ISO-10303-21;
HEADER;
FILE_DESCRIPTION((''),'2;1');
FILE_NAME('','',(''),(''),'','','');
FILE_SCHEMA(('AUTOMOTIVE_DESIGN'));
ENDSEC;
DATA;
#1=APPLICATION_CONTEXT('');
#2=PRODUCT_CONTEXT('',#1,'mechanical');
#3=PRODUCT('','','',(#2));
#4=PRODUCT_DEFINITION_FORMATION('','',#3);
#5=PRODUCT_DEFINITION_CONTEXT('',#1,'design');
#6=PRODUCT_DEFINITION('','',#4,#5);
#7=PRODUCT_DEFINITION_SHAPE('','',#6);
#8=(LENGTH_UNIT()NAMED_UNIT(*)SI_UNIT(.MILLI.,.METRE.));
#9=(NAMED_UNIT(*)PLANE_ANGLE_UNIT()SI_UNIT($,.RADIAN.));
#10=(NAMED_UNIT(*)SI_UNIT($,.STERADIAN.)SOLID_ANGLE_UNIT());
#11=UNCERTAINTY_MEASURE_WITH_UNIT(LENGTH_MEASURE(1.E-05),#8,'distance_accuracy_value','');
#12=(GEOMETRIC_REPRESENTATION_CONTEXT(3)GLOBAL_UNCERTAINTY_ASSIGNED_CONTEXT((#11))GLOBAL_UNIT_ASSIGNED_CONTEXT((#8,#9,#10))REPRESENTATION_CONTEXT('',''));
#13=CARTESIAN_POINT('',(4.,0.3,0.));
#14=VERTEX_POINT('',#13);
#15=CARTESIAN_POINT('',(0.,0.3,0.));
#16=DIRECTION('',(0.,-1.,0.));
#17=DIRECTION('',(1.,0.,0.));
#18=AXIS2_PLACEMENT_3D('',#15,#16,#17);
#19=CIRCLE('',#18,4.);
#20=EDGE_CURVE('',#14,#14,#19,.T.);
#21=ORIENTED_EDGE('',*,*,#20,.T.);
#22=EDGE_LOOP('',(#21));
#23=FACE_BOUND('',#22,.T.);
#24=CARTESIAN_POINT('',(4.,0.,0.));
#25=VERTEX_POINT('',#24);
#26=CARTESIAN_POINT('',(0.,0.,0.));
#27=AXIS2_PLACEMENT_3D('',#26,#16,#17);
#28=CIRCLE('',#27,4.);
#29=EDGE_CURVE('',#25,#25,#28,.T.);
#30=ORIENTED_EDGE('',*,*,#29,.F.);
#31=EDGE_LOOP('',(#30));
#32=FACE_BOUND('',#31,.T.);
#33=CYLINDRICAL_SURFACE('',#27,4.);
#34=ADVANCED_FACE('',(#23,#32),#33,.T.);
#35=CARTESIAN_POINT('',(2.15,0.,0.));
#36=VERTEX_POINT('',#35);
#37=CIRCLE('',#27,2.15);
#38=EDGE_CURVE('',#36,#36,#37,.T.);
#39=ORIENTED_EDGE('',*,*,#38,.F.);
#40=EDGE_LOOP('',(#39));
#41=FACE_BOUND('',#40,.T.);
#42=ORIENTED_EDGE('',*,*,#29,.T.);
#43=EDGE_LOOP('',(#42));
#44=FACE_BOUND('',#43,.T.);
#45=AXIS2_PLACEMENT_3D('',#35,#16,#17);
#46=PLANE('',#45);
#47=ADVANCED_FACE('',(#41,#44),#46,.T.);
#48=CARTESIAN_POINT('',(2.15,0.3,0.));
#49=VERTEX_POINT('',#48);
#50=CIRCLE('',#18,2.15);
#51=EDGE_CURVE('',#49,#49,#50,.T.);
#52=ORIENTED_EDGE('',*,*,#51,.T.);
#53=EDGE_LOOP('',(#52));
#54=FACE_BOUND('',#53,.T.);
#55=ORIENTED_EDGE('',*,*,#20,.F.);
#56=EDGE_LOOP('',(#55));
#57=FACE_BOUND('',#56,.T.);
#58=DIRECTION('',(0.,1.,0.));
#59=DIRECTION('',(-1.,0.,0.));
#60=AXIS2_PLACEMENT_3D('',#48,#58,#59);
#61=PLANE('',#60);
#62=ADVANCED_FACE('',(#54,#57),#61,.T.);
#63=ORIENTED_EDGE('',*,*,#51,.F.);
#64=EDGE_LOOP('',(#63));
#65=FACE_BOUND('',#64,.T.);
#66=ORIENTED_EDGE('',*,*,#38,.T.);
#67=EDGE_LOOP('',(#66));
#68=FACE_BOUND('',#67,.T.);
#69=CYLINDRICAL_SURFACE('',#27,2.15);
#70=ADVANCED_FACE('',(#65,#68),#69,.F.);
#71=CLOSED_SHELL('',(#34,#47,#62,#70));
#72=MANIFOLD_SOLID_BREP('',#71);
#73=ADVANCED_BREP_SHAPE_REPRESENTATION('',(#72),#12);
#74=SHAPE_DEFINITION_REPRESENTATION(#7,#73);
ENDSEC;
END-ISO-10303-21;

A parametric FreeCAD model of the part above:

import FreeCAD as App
import Part
import Sketcher

V = App.Vector


def add_polygon(sketch, points):
    """Adds a closed chain of lines whose ends are joined by coincident constraints."""
    first, n = sketch.GeometryCount, len(points)
    for a, b in zip(points, points[1:] + points[:1]):
        sketch.addGeometry(Part.LineSegment(App.Vector(*a, 0), App.Vector(*b, 0)), False)
    for i in range(n):
        sketch.addConstraint(Sketcher.Constraint("Coincident", first + i, 2, first + (i + 1) % n, 1))

doc = App.newDocument("Part")
params = doc.addObject("Spreadsheet::Sheet", "Params")
for row, (alias, value) in enumerate([
    ("sketch1_height", "0.3 mm"),
    ("sketch1_width", "1.85 mm"),
    ("revolution_angle", "360 deg"),
], start=1):
    params.set(f"A{row}", alias)
    params.set(f"B{row}", "=" + value)
    params.setAlias(f"B{row}", alias)

body = doc.addObject("PartDesign::Body", "Body")

sketch1 = body.newObject("Sketcher::SketchObject", "Sketch")
sketch1.AttachmentSupport = (doc.getObject("XY_Plane"), [""])
sketch1.MapMode = "FlatFace"
add_polygon(sketch1, [(2.15, 0.3), (2.15, 0), (4, 0), (4, 0.3)])
sketch1.addConstraint([
    Sketcher.Constraint("Vertical", 0),
    Sketcher.Constraint("Horizontal", 1),
    Sketcher.Constraint("Vertical", 2),
    Sketcher.Constraint("Horizontal", 3),
    Sketcher.Constraint("PointOnObject", 0, 2, -1),
    Sketcher.Constraint("DistanceY", 0, 2, 0, 1, 0.3),
    Sketcher.Constraint("DistanceX", -1, 1, 1, 2, 4.0),
    Sketcher.Constraint("DistanceX", 1, 1, 1, 2, 1.85),
])
sketch1.setExpression("Constraints[9]", "Params.sketch1_height")
sketch1.setExpression("Constraints[11]", "Params.sketch1_width")
revolution = body.newObject("PartDesign::Revolution", "Revolution")
revolution.Profile = sketch1
revolution.ReferenceAxis = (sketch1, ["V_Axis"])
revolution.setExpression("Angle", "Params.revolution_angle")

doc.recompute()
